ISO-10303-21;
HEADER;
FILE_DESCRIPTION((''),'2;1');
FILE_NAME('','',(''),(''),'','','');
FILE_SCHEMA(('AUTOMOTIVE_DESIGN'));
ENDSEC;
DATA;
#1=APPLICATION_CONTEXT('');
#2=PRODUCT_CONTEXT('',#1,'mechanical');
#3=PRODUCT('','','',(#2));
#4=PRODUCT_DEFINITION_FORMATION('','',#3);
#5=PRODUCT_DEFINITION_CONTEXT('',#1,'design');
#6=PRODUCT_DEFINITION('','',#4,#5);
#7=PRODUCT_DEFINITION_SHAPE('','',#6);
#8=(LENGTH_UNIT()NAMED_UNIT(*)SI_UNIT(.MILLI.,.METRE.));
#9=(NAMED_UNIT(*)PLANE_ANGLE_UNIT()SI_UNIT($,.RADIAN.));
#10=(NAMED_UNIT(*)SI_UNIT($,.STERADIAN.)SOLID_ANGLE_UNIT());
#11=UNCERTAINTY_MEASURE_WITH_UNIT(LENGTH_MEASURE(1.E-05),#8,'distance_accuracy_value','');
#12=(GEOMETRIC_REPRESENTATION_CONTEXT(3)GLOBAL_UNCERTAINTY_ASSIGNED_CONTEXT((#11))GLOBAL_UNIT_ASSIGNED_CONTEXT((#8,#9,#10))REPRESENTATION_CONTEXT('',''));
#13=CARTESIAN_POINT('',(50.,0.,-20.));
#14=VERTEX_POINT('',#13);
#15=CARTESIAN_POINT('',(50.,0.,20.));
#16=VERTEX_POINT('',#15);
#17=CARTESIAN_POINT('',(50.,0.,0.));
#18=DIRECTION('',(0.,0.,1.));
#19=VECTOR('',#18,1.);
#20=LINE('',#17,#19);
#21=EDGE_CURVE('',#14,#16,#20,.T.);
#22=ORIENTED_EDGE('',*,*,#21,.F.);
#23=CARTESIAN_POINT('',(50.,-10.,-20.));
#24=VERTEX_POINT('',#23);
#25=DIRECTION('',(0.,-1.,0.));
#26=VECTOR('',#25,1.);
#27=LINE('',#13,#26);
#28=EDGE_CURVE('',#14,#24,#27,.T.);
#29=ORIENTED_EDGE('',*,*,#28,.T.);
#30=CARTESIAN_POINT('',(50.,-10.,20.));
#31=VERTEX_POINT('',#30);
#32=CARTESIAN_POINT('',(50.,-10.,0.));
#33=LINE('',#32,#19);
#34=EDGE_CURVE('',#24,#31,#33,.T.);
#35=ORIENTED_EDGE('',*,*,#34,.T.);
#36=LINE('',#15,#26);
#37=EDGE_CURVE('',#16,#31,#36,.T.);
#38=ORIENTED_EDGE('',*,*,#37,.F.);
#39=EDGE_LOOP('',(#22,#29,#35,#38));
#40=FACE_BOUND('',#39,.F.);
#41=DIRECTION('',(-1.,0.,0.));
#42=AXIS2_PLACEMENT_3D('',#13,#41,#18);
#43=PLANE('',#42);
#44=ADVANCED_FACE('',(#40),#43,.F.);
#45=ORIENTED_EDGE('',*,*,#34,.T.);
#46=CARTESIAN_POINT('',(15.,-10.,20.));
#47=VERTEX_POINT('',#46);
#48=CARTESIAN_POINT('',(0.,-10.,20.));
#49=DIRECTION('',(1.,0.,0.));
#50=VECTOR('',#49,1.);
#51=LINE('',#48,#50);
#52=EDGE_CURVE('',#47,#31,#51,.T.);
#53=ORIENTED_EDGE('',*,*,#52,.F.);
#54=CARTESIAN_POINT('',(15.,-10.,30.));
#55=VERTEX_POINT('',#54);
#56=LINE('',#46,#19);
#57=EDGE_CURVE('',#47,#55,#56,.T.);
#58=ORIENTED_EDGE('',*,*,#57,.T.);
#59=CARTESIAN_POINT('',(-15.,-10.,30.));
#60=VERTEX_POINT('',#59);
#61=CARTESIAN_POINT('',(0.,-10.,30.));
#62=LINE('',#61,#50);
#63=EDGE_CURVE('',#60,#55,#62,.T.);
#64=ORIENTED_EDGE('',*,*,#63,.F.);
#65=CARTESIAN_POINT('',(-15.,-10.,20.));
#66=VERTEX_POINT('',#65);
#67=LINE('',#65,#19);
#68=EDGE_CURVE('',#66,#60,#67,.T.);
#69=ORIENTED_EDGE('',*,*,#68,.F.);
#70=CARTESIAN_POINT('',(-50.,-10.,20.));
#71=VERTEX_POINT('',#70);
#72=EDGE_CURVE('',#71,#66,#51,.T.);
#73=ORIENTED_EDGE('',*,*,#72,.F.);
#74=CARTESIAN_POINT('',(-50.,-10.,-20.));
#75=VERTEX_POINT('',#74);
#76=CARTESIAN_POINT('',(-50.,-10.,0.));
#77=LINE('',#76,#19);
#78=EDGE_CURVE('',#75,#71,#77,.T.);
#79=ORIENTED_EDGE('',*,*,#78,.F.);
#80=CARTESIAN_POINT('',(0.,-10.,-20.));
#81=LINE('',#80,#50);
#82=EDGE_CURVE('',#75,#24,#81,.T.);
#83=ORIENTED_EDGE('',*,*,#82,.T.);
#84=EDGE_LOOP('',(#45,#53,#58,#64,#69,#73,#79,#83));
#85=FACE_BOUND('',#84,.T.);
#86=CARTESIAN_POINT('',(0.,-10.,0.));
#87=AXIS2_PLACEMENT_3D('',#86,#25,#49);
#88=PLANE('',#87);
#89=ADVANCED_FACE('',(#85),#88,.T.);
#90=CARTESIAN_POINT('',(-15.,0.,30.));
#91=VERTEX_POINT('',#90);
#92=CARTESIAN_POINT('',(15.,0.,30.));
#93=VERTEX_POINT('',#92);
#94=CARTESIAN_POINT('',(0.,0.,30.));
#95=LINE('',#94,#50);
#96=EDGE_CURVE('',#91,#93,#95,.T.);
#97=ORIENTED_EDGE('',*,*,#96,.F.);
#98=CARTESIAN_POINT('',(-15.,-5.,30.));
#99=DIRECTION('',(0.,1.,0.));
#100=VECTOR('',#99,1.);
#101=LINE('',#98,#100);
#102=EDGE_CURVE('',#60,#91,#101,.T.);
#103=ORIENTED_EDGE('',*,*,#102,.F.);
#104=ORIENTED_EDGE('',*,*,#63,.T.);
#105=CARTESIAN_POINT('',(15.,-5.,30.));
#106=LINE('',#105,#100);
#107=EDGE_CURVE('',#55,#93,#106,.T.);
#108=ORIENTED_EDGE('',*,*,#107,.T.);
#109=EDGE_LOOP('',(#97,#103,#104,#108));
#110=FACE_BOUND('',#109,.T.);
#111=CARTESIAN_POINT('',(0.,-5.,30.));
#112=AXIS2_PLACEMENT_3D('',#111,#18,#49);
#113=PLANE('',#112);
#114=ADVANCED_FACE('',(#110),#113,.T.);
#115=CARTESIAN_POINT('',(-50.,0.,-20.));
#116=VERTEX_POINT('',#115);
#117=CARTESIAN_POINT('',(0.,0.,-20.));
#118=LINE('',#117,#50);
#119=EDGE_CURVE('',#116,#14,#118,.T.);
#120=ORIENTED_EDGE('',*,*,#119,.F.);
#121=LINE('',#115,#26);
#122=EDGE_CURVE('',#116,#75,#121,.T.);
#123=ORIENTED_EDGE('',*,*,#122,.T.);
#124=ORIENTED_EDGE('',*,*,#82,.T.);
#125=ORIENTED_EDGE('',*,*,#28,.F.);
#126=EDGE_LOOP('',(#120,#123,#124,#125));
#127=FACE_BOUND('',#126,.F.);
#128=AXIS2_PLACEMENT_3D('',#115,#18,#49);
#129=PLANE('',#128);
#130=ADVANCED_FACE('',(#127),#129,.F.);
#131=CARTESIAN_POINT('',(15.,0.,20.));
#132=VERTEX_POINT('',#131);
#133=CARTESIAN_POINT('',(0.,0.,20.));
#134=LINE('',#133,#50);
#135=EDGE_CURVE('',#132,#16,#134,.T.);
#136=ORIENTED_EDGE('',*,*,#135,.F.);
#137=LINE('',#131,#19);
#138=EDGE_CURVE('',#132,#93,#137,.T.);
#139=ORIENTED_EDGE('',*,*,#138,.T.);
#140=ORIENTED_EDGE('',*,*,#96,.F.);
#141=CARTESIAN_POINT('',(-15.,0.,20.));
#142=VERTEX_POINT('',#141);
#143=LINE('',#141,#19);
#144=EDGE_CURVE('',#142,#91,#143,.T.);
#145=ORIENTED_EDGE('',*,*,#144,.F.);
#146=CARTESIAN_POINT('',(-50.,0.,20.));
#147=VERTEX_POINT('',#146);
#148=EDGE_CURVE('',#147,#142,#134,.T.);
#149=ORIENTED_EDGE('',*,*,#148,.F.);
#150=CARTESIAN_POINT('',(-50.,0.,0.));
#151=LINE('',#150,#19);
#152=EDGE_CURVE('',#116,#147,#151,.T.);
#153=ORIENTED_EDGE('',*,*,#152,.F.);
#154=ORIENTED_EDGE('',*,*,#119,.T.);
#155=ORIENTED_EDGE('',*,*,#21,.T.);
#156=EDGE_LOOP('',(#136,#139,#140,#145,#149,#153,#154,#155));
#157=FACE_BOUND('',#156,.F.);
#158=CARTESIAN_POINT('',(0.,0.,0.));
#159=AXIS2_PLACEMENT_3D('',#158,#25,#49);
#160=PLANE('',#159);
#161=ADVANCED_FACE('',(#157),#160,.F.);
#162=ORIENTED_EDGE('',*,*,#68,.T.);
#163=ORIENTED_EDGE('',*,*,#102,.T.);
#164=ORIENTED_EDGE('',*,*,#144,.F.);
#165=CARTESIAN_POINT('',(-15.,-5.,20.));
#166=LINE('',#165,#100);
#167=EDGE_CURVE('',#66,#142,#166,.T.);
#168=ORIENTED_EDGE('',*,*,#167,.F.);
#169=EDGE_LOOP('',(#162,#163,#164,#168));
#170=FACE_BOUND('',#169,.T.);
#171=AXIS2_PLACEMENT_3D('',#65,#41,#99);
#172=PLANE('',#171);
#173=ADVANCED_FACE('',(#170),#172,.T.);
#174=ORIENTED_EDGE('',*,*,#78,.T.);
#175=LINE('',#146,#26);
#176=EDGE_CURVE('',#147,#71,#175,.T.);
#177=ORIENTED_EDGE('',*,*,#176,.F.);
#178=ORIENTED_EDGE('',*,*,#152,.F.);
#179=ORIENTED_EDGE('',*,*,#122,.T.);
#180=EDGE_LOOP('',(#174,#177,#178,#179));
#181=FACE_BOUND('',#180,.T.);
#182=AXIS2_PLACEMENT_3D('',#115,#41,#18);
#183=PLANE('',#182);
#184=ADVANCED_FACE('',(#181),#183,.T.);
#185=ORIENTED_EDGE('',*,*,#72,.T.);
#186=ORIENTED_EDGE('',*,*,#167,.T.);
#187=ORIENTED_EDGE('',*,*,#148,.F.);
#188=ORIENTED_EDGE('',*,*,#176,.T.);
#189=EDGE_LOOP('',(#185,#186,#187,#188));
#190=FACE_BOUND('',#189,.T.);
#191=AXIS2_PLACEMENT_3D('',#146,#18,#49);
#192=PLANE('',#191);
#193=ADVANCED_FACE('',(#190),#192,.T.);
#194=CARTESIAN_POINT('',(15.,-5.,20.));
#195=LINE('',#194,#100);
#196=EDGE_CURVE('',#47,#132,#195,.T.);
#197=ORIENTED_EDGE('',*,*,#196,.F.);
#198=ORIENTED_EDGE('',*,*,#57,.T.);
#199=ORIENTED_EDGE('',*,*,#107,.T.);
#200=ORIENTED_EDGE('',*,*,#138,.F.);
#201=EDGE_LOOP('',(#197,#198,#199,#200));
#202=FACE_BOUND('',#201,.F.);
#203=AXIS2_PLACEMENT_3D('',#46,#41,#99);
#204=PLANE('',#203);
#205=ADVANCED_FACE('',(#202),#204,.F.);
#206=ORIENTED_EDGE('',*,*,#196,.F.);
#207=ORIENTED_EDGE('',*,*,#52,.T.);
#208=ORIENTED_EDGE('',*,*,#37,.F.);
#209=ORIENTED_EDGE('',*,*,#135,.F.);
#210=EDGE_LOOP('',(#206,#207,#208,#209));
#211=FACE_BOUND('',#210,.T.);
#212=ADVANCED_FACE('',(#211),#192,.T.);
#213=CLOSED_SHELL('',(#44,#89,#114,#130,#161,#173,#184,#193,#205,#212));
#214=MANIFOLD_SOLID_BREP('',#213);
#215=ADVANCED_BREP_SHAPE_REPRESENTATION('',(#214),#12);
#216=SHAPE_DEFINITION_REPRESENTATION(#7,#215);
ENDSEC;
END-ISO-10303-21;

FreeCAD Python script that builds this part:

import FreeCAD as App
import Part
import Sketcher

V = App.Vector
Q = App.Units.Quantity


def add_polygon(sketch, points):
    """Adds a closed chain of lines whose ends are joined by coincident constraints."""
    first, n = sketch.GeometryCount, len(points)
    for a, b in zip(points, points[1:] + points[:1]):
        sketch.addGeometry(Part.LineSegment(App.Vector(*a, 0), App.Vector(*b, 0)), False)
    for i in range(n):
        sketch.addConstraint(Sketcher.Constraint("Coincident", first + i, 2, first + (i + 1) % n, 1))

doc = App.newDocument("Part")
params = doc.addObject("Spreadsheet::Sheet", "Params")
for row, (alias, value) in enumerate([
    ("sketch1_width", "100 mm"),
    ("sketch1_height", "40 mm"),
    ("pad1_length", "10 mm"),
    ("sketch2_width", "30 mm"),
    ("sketch2_height", "10 mm"),
    ("pad2_length", "10 mm"),
], start=1):
    params.set(f"A{row}", alias)
    params.set(f"B{row}", "=" + value)
    params.setAlias(f"B{row}", alias)

body = doc.addObject("PartDesign::Body", "Body")

# Sketch on XZ plane
sketch1 = body.newObject("Sketcher::SketchObject", "Sketch")
sketch1.AttachmentSupport = (doc.getObject("XZ_Plane"), [""])
sketch1.MapMode = "FlatFace"
add_polygon(sketch1, [(-50, 20), (-50, -20), (50, -20), (50, 20)])  # lines 0-3
sketch1.addConstraint(Sketcher.Constraint("Vertical", 0))
sketch1.addConstraint(Sketcher.Constraint("Horizontal", 1))
sketch1.addConstraint(Sketcher.Constraint("Vertical", 2))
sketch1.addConstraint(Sketcher.Constraint("Horizontal", 3))
sketch1.addConstraint(Sketcher.Constraint("Symmetric", 0, 2, 2, 2, -1, 1))
sketch1.addConstraint(Sketcher.Constraint("DistanceX", 1, 1, 1, 2, Q("100 mm")))
sketch1.addConstraint(Sketcher.Constraint("DistanceY", 0, 2, 0, 1, Q("40 mm")))
sketch1.setExpression("Constraints[9]", "Params.sketch1_width")
sketch1.setExpression("Constraints[10]", "Params.sketch1_height")
pad1 = body.newObject("PartDesign::Pad", "Pad")
pad1.Profile = sketch1
pad1.setExpression("Length", "Params.pad1_length")

# Sketch on XY plane
sketch2 = body.newObject("Sketcher::SketchObject", "Sketch001")
sketch2.AttachmentSupport = (doc.getObject("XY_Plane"), [""])
sketch2.MapMode = "FlatFace"
sketch2.AttachmentOffset = App.Placement(V(0, 0, 20), App.Rotation())
add_polygon(sketch2, [(-15, 0), (-15, -10), (15, -10), (15, 0)])  # lines 0-3
sketch2.addConstraint(Sketcher.Constraint("Vertical", 0))
sketch2.addConstraint(Sketcher.Constraint("Horizontal", 1))
sketch2.addConstraint(Sketcher.Constraint("Vertical", 2))
sketch2.addConstraint(Sketcher.Constraint("Horizontal", 3))
sketch2.addConstraint(Sketcher.Constraint("Symmetric", 2, 2, 3, 2, -1, 1))
sketch2.addConstraint(Sketcher.Constraint("DistanceX", 1, 1, 1, 2, Q("30 mm")))
sketch2.addConstraint(Sketcher.Constraint("DistanceY", 0, 2, 0, 1, Q("10 mm")))
sketch2.setExpression("Constraints[9]", "Params.sketch2_width")
sketch2.setExpression("Constraints[10]", "Params.sketch2_height")
pad2 = body.newObject("PartDesign::Pad", "Pad001")
pad2.Profile = sketch2
pad2.setExpression("Length", "Params.pad2_length")

doc.recompute()
